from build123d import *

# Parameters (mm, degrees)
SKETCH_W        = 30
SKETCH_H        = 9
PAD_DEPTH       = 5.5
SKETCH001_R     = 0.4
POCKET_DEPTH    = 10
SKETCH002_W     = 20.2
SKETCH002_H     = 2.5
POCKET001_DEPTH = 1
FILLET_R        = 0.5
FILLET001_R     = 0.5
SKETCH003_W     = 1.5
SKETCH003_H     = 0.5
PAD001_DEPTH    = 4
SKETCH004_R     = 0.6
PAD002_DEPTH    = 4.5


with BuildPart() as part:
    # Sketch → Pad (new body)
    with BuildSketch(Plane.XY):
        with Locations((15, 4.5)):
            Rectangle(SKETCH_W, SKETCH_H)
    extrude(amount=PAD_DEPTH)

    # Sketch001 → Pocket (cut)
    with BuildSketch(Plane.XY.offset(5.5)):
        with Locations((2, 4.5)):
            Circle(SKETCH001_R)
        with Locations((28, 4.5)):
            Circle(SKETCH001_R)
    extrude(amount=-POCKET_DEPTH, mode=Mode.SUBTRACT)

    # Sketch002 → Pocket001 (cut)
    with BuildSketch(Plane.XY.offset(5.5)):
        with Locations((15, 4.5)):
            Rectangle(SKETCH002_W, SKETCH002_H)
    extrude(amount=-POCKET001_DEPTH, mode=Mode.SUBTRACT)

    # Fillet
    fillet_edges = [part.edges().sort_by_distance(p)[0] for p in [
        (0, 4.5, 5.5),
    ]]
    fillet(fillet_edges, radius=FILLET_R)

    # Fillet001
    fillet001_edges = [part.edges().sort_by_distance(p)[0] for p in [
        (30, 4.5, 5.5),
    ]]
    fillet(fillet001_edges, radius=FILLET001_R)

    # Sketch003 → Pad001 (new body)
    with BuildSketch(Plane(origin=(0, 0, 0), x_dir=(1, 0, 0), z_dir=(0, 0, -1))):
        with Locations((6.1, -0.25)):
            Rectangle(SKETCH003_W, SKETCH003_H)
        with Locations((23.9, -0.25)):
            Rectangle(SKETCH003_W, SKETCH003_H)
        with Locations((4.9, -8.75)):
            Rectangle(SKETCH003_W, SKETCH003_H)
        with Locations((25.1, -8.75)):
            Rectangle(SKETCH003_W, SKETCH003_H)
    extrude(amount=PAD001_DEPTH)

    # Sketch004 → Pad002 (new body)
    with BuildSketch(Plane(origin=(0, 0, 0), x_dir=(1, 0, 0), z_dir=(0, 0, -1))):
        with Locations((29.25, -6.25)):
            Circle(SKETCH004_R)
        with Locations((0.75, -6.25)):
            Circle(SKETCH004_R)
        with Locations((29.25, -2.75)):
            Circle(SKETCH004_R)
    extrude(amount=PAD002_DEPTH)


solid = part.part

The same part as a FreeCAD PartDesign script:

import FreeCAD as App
import Part
import Sketcher

V = App.Vector
Q = App.Units.Quantity


def edges_at(feature, points):
    """Names of the edges that pass closest to the given points."""
    edges = feature.Shape.Edges
    near = lambda p: min(range(len(edges)), key=lambda i: edges[i].distToShape(Part.Vertex(*p))[0])
    return sorted({f"Edge{near(p) + 1}" for p in points})


def add_polygon(sketch, points):
    """Adds a closed chain of lines whose ends are joined by coincident constraints."""
    first, n = sketch.GeometryCount, len(points)
    for a, b in zip(points, points[1:] + points[:1]):
        sketch.addGeometry(Part.LineSegment(App.Vector(*a, 0), App.Vector(*b, 0)), False)
    for i in range(n):
        sketch.addConstraint(Sketcher.Constraint("Coincident", first + i, 2, first + (i + 1) % n, 1))

doc = App.newDocument("Part")
params = doc.addObject("Spreadsheet::Sheet", "Params")
for row, (alias, value) in enumerate([
    ("sketch1_width", "30 mm"),
    ("sketch1_height", "9 mm"),
    ("pad1_length", "5.5 mm"),
    ("sketch2_diameter", "0.8 mm"),
    ("pocket1_length", "10 mm"),
    ("sketch3_width", "20.2 mm"),
    ("sketch3_height", "2.5 mm"),
    ("pocket2_length", "1 mm"),
    ("fillet_radius", "0.5 mm"),
    ("fillet2_radius", "0.5 mm"),
    ("sketch4_width", "1.5 mm"),
    ("sketch4_height", "0.5 mm"),
    ("pad2_length", "4 mm"),
    ("sketch5_diameter", "1.2 mm"),
    ("pad3_length", "4.5 mm"),
], start=1):
    params.set(f"A{row}", alias)
    params.set(f"B{row}", "=" + value)
    params.setAlias(f"B{row}", alias)

body = doc.addObject("PartDesign::Body", "Body")

# Sketch on XY plane
sketch1 = doc.addObject("Sketcher::SketchObject", "Sketch")
body.addObject(sketch1)
sketch1.AttachmentSupport = (doc.XY_Plane, [""])
sketch1.MapMode = "FlatFace"
add_polygon(sketch1, [(0, 9), (0, 0), (30, 0), (30, 9)])  # lines 0-3
sketch1.addConstraint(Sketcher.Constraint("Vertical", 0))
sketch1.addConstraint(Sketcher.Constraint("Horizontal", 1))
sketch1.addConstraint(Sketcher.Constraint("Vertical", 2))
sketch1.addConstraint(Sketcher.Constraint("Horizontal", 3))
sketch1.addConstraint(Sketcher.Constraint("Coincident", 0, 2, -1, 1))
sketch1.addConstraint(Sketcher.Constraint("DistanceX", 1, 1, 1, 2, Q("30 mm")))
sketch1.addConstraint(Sketcher.Constraint("DistanceY", 0, 2, 0, 1, Q("9 mm")))
sketch1.setExpression("Constraints[9]", "Params.sketch1_width")
sketch1.setExpression("Constraints[10]", "Params.sketch1_height")
pad1 = doc.addObject("PartDesign::Pad", "Pad")
body.addObject(pad1)
pad1.Profile = sketch1
pad1.setExpression("Length", "Params.pad1_length")

# Sketch on XY plane
sketch2 = doc.addObject("Sketcher::SketchObject", "Sketch001")
body.addObject(sketch2)
sketch2.AttachmentSupport = (doc.XY_Plane, [""])
sketch2.MapMode = "FlatFace"
sketch2.AttachmentOffset = App.Placement(V(0, 0, 5.5), App.Rotation())
sketch2.addGeometry(Part.Circle(V(2, 4.5, 0), V(0, 0, 1), 0.4), False)
sketch2.addGeometry(Part.Circle(V(28, 4.5, 0), V(0, 0, 1), 0.4), False)
sketch2.addConstraint(Sketcher.Constraint("Equal", 0, 1))
sketch2.addConstraint(Sketcher.Constraint("Horizontal", 0, 3, 1, 3))
sketch2.addConstraint(Sketcher.Constraint("Diameter", 0, Q("0.8 mm")))
sketch2.addConstraint(Sketcher.Constraint("DistanceX", -1, 1, 0, 3, Q("2 mm")))
sketch2.addConstraint(Sketcher.Constraint("DistanceX", -1, 1, 1, 3, Q("28 mm")))
sketch2.addConstraint(Sketcher.Constraint("DistanceY", -1, 1, 0, 3, Q("4.5 mm")))
sketch2.setExpression("Constraints[2]", "Params.sketch2_diameter")
pocket1 = doc.addObject("PartDesign::Pocket", "Pocket")
body.addObject(pocket1)
pocket1.Profile = sketch2
pocket1.setExpression("Length", "Params.pocket1_length")

# Sketch on XY plane
sketch3 = doc.addObject("Sketcher::SketchObject", "Sketch002")
body.addObject(sketch3)
sketch3.AttachmentSupport = (doc.XY_Plane, [""])
sketch3.MapMode = "FlatFace"
sketch3.AttachmentOffset = App.Placement(V(0, 0, 5.5), App.Rotation())
add_polygon(sketch3, [(4.9, 5.8), (4.9, 3.2), (25.1, 3.2), (25.1, 5.8)])  # lines 0-3
sketch3.addConstraint(Sketcher.Constraint("Vertical", 0))
sketch3.addConstraint(Sketcher.Constraint("Horizontal", 1))
sketch3.addConstraint(Sketcher.Constraint("Vertical", 2))
sketch3.addConstraint(Sketcher.Constraint("Horizontal", 3))
sketch3.addConstraint(Sketcher.Constraint("DistanceX", 1, 1, 1, 2, Q("20.2 mm")))
sketch3.addConstraint(Sketcher.Constraint("DistanceY", 0, 2, 0, 1, Q("2.5 mm")))
sketch3.addConstraint(Sketcher.Constraint("DistanceX", -1, 1, 0, 2, Q("4.9 mm")))
sketch3.addConstraint(Sketcher.Constraint("DistanceY", -1, 1, 0, 2, Q("3.25 mm")))
sketch3.setExpression("Constraints[8]", "Params.sketch3_width")
sketch3.setExpression("Constraints[9]", "Params.sketch3_height")
pocket2 = doc.addObject("PartDesign::Pocket", "Pocket001")
body.addObject(pocket2)
pocket2.Profile = sketch3
pocket2.setExpression("Length", "Params.pocket2_length")
doc.recompute()

fillet = doc.addObject("PartDesign::Fillet", "Fillet")
body.addObject(fillet)
fillet.Base = (pocket2, edges_at(pocket2, [(0, 4.5, 5.5)]))
fillet.setExpression("Radius", "Params.fillet_radius")
doc.recompute()

fillet2 = doc.addObject("PartDesign::Fillet", "Fillet001")
body.addObject(fillet2)
fillet2.Base = (fillet, edges_at(fillet, [(30, 4.5, 5.5)]))
fillet2.setExpression("Radius", "Params.fillet2_radius")

# Sketch on XY plane
sketch4 = doc.addObject("Sketcher::SketchObject", "Sketch003")
body.addObject(sketch4)
sketch4.AttachmentSupport = (doc.XY_Plane, [""])
sketch4.MapMode = "FlatFace"
add_polygon(sketch4, [(5.3, 0), (5.3, 0.5), (6.8, 0.5), (6.8, 0)])  # lines 0-3
add_polygon(sketch4, [(23.1, 0), (23.1, 0.5), (24.6, 0.5), (24.6, 0)])  # lines 4-7
add_polygon(sketch4, [(4.2, 8.5), (4.2, 9), (5.7, 9), (5.7, 8.5)])  # lines 8-11
add_polygon(sketch4, [(24.4, 8.5), (24.4, 9), (25.9, 9), (25.9, 8.5)])  # lines 12-15
sketch4.addConstraint(Sketcher.Constraint("Vertical", 0))
sketch4.addConstraint(Sketcher.Constraint("Horizontal", 1))
sketch4.addConstraint(Sketcher.Constraint("Vertical", 2))
sketch4.addConstraint(Sketcher.Constraint("Horizontal", 3))
sketch4.addConstraint(Sketcher.Constraint("Vertical", 4))
sketch4.addConstraint(Sketcher.Constraint("Horizontal", 5))
sketch4.addConstraint(Sketcher.Constraint("Vertical", 6))
sketch4.addConstraint(Sketcher.Constraint("Horizontal", 7))
sketch4.addConstraint(Sketcher.Constraint("Vertical", 8))
sketch4.addConstraint(Sketcher.Constraint("Horizontal", 9))
sketch4.addConstraint(Sketcher.Constraint("Vertical", 10))
sketch4.addConstraint(Sketcher.Constraint("Horizontal", 11))
sketch4.addConstraint(Sketcher.Constraint("Vertical", 12))
sketch4.addConstraint(Sketcher.Constraint("Horizontal", 13))
sketch4.addConstraint(Sketcher.Constraint("Vertical", 14))
sketch4.addConstraint(Sketcher.Constraint("Horizontal", 15))
sketch4.addConstraint(Sketcher.Constraint("PointOnObject", 2, 2, -1))
sketch4.addConstraint(Sketcher.Constraint("PointOnObject", 6, 2, -1))
sketch4.addConstraint(Sketcher.Constraint("Horizontal", 1, 2, 4, 2))
sketch4.addConstraint(Sketcher.Constraint("Horizontal", 9, 2, 12, 2))
sketch4.addConstraint(Sketcher.Constraint("Horizontal", 11, 2, 14, 2))
sketch4.addConstraint(Sketcher.Constraint("Equal", 3, 5))
sketch4.addConstraint(Sketcher.Constraint("Equal", 7, 9))
sketch4.addConstraint(Sketcher.Constraint("Equal", 11, 13))
sketch4.addConstraint(Sketcher.Constraint("Equal", 6, 8))
sketch4.addConstraint(Sketcher.Constraint("DistanceX", 1, 1, 1, 2, Q("1.5 mm")))
sketch4.addConstraint(Sketcher.Constraint("DistanceY", 0, 1, 0, 2, Q("0.5 mm")))
sketch4.addConstraint(Sketcher.Constraint("DistanceY", -1, 1, 8, 2, Q("9 mm")))
sketch4.addConstraint(Sketcher.Constraint("DistanceX", 8, 2, 4, 2, Q("19 mm")))
sketch4.addConstraint(Sketcher.Constraint("DistanceX", 1, 2, 4, 2, Q("16.3 mm")))
sketch4.addConstraint(Sketcher.Constraint("DistanceX", 12, 2, 5, 2, Q("0.3 mm")))
sketch4.addConstraint(Sketcher.Constraint("DistanceX", -1, 1, 0, 2, Q("5.35 mm")))
sketch4.setExpression("Constraints[41]", "Params.sketch4_width")
sketch4.setExpression("Constraints[42]", "Params.sketch4_height")
pad2 = doc.addObject("PartDesign::Pad", "Pad001")
body.addObject(pad2)
pad2.Profile = sketch4
pad2.setExpression("Length", "Params.pad2_length")
pad2.Reversed = True

# Sketch on XY plane
sketch5 = doc.addObject("Sketcher::SketchObject", "Sketch004")
body.addObject(sketch5)
sketch5.AttachmentSupport = (doc.XY_Plane, [""])
sketch5.MapMode = "FlatFace"
sketch5.addGeometry(Part.Circle(V(29.2, 6.2, 0), V(0, 0, 1), 0.6), False)
sketch5.addGeometry(Part.Circle(V(0.8, 6.2, 0), V(0, 0, 1), 0.6), False)
sketch5.addGeometry(Part.Circle(V(29.2, 2.8, 0), V(0, 0, 1), 0.6), False)
sketch5.addConstraint(Sketcher.Constraint("Equal", 0, 1))
sketch5.addConstraint(Sketcher.Constraint("Equal", 1, 2))
sketch5.addConstraint(Sketcher.Constraint("Horizontal", 0, 3, 1, 3))
sketch5.addConstraint(Sketcher.Constraint("Vertical", 0, 3, 2, 3))
sketch5.addConstraint(Sketcher.Constraint("Diameter", 0, Q("1.2 mm")))
sketch5.addConstraint(Sketcher.Constraint("DistanceX", 1, 3, 0, 3, Q("28.5 mm")))
sketch5.addConstraint(Sketcher.Constraint("DistanceY", 2, 3, 0, 3, Q("3.5 mm")))
sketch5.addConstraint(Sketcher.Constraint("DistanceX", -1, 1, 0, 3, Q("29.25 mm")))
sketch5.addConstraint(Sketcher.Constraint("DistanceY", -1, 1, 0, 3, Q("6.25 mm")))
sketch5.setExpression("Constraints[4]", "Params.sketch5_diameter")
pad3 = doc.addObject("PartDesign::Pad", "Pad002")
body.addObject(pad3)
pad3.Profile = sketch5
pad3.setExpression("Length", "Params.pad3_length")
pad3.Reversed = True

doc.recompute()
